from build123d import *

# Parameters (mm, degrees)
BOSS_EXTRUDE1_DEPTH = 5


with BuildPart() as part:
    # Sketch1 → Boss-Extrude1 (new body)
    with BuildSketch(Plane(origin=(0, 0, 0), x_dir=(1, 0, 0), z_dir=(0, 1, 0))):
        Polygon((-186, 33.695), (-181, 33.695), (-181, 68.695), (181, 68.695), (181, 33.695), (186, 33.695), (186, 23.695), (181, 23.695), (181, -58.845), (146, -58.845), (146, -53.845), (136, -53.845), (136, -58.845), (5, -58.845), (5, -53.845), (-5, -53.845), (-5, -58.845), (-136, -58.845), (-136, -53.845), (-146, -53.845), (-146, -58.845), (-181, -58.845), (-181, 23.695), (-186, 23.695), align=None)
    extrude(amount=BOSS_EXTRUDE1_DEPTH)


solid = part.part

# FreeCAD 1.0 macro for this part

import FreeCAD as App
import Part
import Sketcher
from FreeCAD import Vector


def add_polygon(sketch, points):
    """Adds a closed chain of lines whose ends are joined by coincident constraints."""
    first, n = sketch.GeometryCount, len(points)
    for a, b in zip(points, points[1:] + points[:1]):
        sketch.addGeometry(Part.LineSegment(App.Vector(*a, 0), App.Vector(*b, 0)), False)
    for i in range(n):
        sketch.addConstraint(Sketcher.Constraint("Coincident", first + i, 2, first + (i + 1) % n, 1))

doc = App.newDocument("Part")
body = doc.addObject("PartDesign::Body", "Body")

# Sketch on XZ plane
sketch1 = body.newObject("Sketcher::SketchObject", "Sketch")
sketch1.AttachmentSupport = (doc.getObject("XZ_Plane"), [""])
sketch1.MapMode = "FlatFace"
add_polygon(sketch1, [(-181, -33.695), (-186, -33.695), (-186, -23.695), (-181, -23.695), (-181, 58.845), (-146, 58.845), (-146, 53.845), (-136, 53.845), (-136, 58.845), (-5, 58.845), (-5, 53.845), (5, 53.845), (5, 58.845), (136, 58.845), (136, 53.845), (146, 53.845), (146, 58.845), (181, 58.845), (181, -23.695), (186, -23.695), (186, -33.695), (181, -33.695), (181, -68.695), (-181, -68.695)])  # lines 0-23
sketch1.addConstraint(Sketcher.Constraint("Horizontal", 0))
sketch1.addConstraint(Sketcher.Constraint("Vertical", 1))
sketch1.addConstraint(Sketcher.Constraint("Horizontal", 2))
sketch1.addConstraint(Sketcher.Constraint("Vertical", 3))
sketch1.addConstraint(Sketcher.Constraint("Horizontal", 4))
sketch1.addConstraint(Sketcher.Constraint("Vertical", 5))
sketch1.addConstraint(Sketcher.Constraint("Horizontal", 6))
sketch1.addConstraint(Sketcher.Constraint("Vertical", 7))
sketch1.addConstraint(Sketcher.Constraint("Horizontal", 8))
sketch1.addConstraint(Sketcher.Constraint("Vertical", 9))
sketch1.addConstraint(Sketcher.Constraint("Horizontal", 10))
sketch1.addConstraint(Sketcher.Constraint("Vertical", 11))
sketch1.addConstraint(Sketcher.Constraint("Horizontal", 12))
sketch1.addConstraint(Sketcher.Constraint("Vertical", 13))
sketch1.addConstraint(Sketcher.Constraint("Horizontal", 14))
sketch1.addConstraint(Sketcher.Constraint("Vertical", 15))
sketch1.addConstraint(Sketcher.Constraint("Horizontal", 16))
sketch1.addConstraint(Sketcher.Constraint("Vertical", 17))
sketch1.addConstraint(Sketcher.Constraint("Horizontal", 18))
sketch1.addConstraint(Sketcher.Constraint("Vertical", 19))
sketch1.addConstraint(Sketcher.Constraint("Horizontal", 20))
sketch1.addConstraint(Sketcher.Constraint("Vertical", 21))
sketch1.addConstraint(Sketcher.Constraint("Horizontal", 22))
sketch1.addConstraint(Sketcher.Constraint("Vertical", 23))
sketch1.addConstraint(Sketcher.Constraint("Symmetric", 8, 2, 11, 2, -2))
sketch1.addConstraint(Sketcher.Constraint("Symmetric", 6, 2, 13, 2, -2))
sketch1.addConstraint(Sketcher.Constraint("Symmetric", 4, 2, 15, 2, -2))
sketch1.addConstraint(Sketcher.Constraint("Symmetric", 2, 2, 17, 2, -2))
sketch1.addConstraint(Sketcher.Constraint("Symmetric", 0, 2, 19, 2, -2))
sketch1.addConstraint(Sketcher.Constraint("Horizontal", 4, 2, 7, 2))
sketch1.addConstraint(Sketcher.Constraint("Horizontal", 6, 2, 9, 2))
sketch1.addConstraint(Sketcher.Constraint("Vertical", 17, 2, 20, 2))
sketch1.addConstraint(Sketcher.Constraint("Vertical", 3, 2, 22, 2))
sketch1.addConstraint(Sketcher.Constraint("Equal", 6, 10))
sketch1.addConstraint(Sketcher.Constraint("Equal", 14, 1))
sketch1.addConstraint(Sketcher.Constraint("Equal", 20, 5))
sketch1.addConstraint(Sketcher.Constraint("Equal", 16, 21))
sketch1.addConstraint(Sketcher.Constraint("DistanceX", 0, 2, 0, 1, 5.0))
sketch1.addConstraint(Sketcher.Constraint("DistanceX", 4, 1, 4, 2, 35.0))
sketch1.addConstraint(Sketcher.Constraint("DistanceX", 6, 1, 6, 2, 10.0))
sketch1.addConstraint(Sketcher.Constraint("DistanceX", 8, 1, 8, 2, 131.0))
sketch1.addConstraint(Sketcher.Constraint("DistanceY", 3, 1, 3, 2, 82.54))
sketch1.addConstraint(Sketcher.Constraint("DistanceY", 0, 2, -1, 1, 33.695))
pad1 = body.newObject("PartDesign::Pad", "Pad")
pad1.Profile = sketch1
pad1.Length = 5
pad1.Reversed = True

doc.recompute()
